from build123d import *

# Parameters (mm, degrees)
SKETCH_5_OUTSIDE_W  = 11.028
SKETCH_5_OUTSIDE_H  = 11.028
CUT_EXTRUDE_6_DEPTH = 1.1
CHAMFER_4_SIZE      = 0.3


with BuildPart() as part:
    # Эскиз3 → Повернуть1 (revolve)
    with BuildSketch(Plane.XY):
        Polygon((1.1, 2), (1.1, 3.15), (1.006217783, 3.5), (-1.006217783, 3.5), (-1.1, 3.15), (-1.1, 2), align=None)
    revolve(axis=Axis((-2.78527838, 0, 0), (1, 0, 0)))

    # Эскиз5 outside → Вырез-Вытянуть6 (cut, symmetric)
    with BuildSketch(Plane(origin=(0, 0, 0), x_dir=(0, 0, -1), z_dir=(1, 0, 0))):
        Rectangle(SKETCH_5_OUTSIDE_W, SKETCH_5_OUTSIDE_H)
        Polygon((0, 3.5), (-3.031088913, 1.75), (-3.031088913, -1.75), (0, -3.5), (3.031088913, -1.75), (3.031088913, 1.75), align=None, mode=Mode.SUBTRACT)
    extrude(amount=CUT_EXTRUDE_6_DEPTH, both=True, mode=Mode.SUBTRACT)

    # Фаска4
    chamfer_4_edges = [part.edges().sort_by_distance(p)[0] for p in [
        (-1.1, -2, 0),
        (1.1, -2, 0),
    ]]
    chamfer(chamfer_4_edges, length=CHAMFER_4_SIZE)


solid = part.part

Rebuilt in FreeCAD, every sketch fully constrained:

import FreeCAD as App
import Part
import Sketcher

V = App.Vector
Q = App.Units.Quantity


def edges_at(feature, points):
    """Names of the edges that pass closest to the given points."""
    edges = feature.Shape.Edges
    near = lambda p: min(range(len(edges)), key=lambda i: edges[i].distToShape(Part.Vertex(*p))[0])
    return sorted({f"Edge{near(p) + 1}" for p in points})

doc = App.newDocument("Part")
params = doc.addObject("Spreadsheet::Sheet", "Params")
for row, (alias, value) in enumerate([
    ("sketch1_width", "2.2 mm"),
    ("sketch1_height", "1.15 mm"),
    ("revolution_angle", "360 deg"),
    ("sketch2_width", "3.5 mm"),
    ("pocket1_length", "2.2 mm"),
    ("chamfer_size", "0.3 mm"),
], start=1):
    params.set(f"A{row}", alias)
    params.set(f"B{row}", "=" + value)
    params.setAlias(f"B{row}", alias)

body = doc.addObject("PartDesign::Body", "Body")

# Sketch on XY plane
sketch1 = body.newObject("Sketcher::SketchObject", "Sketch")
sketch1.AttachmentSupport = (doc.getObject("XY_Plane"), [""])
sketch1.MapMode = "FlatFace"
sketch1.addGeometry(Part.LineSegment(V(1.1, 2, 0), V(1.1, 3.15, 0)), False)
sketch1.addGeometry(Part.LineSegment(V(1.1, 3.15, 0), V(1.01, 3.5, 0)), False)
sketch1.addGeometry(Part.LineSegment(V(1.01, 3.5, 0), V(-1.01, 3.5, 0)), False)
sketch1.addGeometry(Part.LineSegment(V(-1.01, 3.5, 0), V(-1.1, 3.15, 0)), False)
sketch1.addGeometry(Part.LineSegment(V(-1.1, 3.15, 0), V(-1.1, 2, 0)), False)
sketch1.addGeometry(Part.LineSegment(V(-1.1, 2, 0), V(1.1, 2, 0)), False)
sketch1.addConstraint(Sketcher.Constraint("Coincident", 0, 2, 1, 1))
sketch1.addConstraint(Sketcher.Constraint("Coincident", 1, 2, 2, 1))
sketch1.addConstraint(Sketcher.Constraint("Coincident", 2, 2, 3, 1))
sketch1.addConstraint(Sketcher.Constraint("Coincident", 3, 2, 4, 1))
sketch1.addConstraint(Sketcher.Constraint("Coincident", 4, 2, 5, 1))
sketch1.addConstraint(Sketcher.Constraint("Coincident", 5, 2, 0, 1))
sketch1.addConstraint(Sketcher.Constraint("Vertical", 0))
sketch1.addConstraint(Sketcher.Constraint("Horizontal", 2))
sketch1.addConstraint(Sketcher.Constraint("Vertical", 4))
sketch1.addConstraint(Sketcher.Constraint("Horizontal", 5))
sketch1.addConstraint(Sketcher.Constraint("Symmetric", 0, 2, 3, 2, -2))
sketch1.addConstraint(Sketcher.Constraint("Equal", 1, 3))
sketch1.addConstraint(Sketcher.Constraint("Angle", 1, Q("105 deg")))
sketch1.addConstraint(Sketcher.Constraint("DistanceX", 5, 1, 5, 2, 2.2))
sketch1.addConstraint(Sketcher.Constraint("DistanceY", -1, 1, 4, 2, 2.0))
sketch1.addConstraint(Sketcher.Constraint("DistanceY", 0, 1, 0, 2, 1.15))
sketch1.addConstraint(Sketcher.Constraint("DistanceY", -1, 1, 1, 2, 3.5))
sketch1.setExpression("Constraints[13]", "Params.sketch1_width")
sketch1.setExpression("Constraints[15]", "Params.sketch1_height")
revolution = body.newObject("PartDesign::Revolution", "Revolution")
revolution.Profile = sketch1
revolution.ReferenceAxis = (sketch1, ["H_Axis"])
revolution.setExpression("Angle", "Params.revolution_angle")

# Sketch on YZ plane
sketch2 = body.newObject("Sketcher::SketchObject", "Sketch001")
sketch2.AttachmentSupport = (doc.getObject("YZ_Plane"), [""])
sketch2.MapMode = "FlatFace"
sketch2.addGeometry(Part.LineSegment(V(5.5, 5.5, 0), V(-5.5, 5.5, 0)), False)
sketch2.addGeometry(Part.LineSegment(V(-5.5, 5.5, 0), V(-5.5, -5.5, 0)), False)
sketch2.addGeometry(Part.LineSegment(V(-5.5, -5.5, 0), V(5.5, -5.5, 0)), False)
sketch2.addGeometry(Part.LineSegment(V(5.5, -5.5, 0), V(5.5, 5.5, 0)), False)
sketch2.addGeometry(Part.LineSegment(V(1.8, 3, 0), V(3.5, 0, 0)), False)
sketch2.addGeometry(Part.LineSegment(V(3.5, 0, 0), V(1.8, -3, 0)), False)
sketch2.addGeometry(Part.LineSegment(V(1.8, -3, 0), V(-1.8, -3, 0)), False)
sketch2.addGeometry(Part.LineSegment(V(-1.8, -3, 0), V(-3.5, 0, 0)), False)
sketch2.addGeometry(Part.LineSegment(V(-3.5, 0, 0), V(-1.8, 3, 0)), False)
sketch2.addGeometry(Part.LineSegment(V(-1.8, 3, 0), V(1.8, 3, 0)), False)
sketch2.addConstraint(Sketcher.Constraint("Coincident", 0, 2, 1, 1))
sketch2.addConstraint(Sketcher.Constraint("Coincident", 1, 2, 2, 1))
sketch2.addConstraint(Sketcher.Constraint("Coincident", 2, 2, 3, 1))
sketch2.addConstraint(Sketcher.Constraint("Coincident", 3, 2, 0, 1))
sketch2.addConstraint(Sketcher.Constraint("Coincident", 4, 2, 5, 1))
sketch2.addConstraint(Sketcher.Constraint("Coincident", 5, 2, 6, 1))
sketch2.addConstraint(Sketcher.Constraint("Coincident", 6, 2, 7, 1))
sketch2.addConstraint(Sketcher.Constraint("Coincident", 7, 2, 8, 1))
sketch2.addConstraint(Sketcher.Constraint("Coincident", 8, 2, 9, 1))
sketch2.addConstraint(Sketcher.Constraint("Coincident", 9, 2, 4, 1))
sketch2.addConstraint(Sketcher.Constraint("Horizontal", 0))
sketch2.addConstraint(Sketcher.Constraint("Vertical", 1))
sketch2.addConstraint(Sketcher.Constraint("Horizontal", 2))
sketch2.addConstraint(Sketcher.Constraint("Vertical", 3))
sketch2.addConstraint(Sketcher.Constraint("Horizontal", 6))
sketch2.addConstraint(Sketcher.Constraint("Horizontal", 9))
sketch2.addConstraint(Sketcher.Constraint("Symmetric", 0, 2, 2, 2, -1, 1))
sketch2.addConstraint(Sketcher.Constraint("Symmetric", 4, 2, 7, 2, -1, 1))
sketch2.addConstraint(Sketcher.Constraint("Symmetric", 5, 2, 8, 2, -1, 1))
sketch2.addConstraint(Sketcher.Constraint("PointOnObject", 4, 2, -1))
sketch2.addConstraint(Sketcher.Constraint("Parallel", 4, 7))
sketch2.addConstraint(Sketcher.Constraint("Vertical", 6, 2, 8, 2))
sketch2.addConstraint(Sketcher.Constraint("Equal", 2, 1))
sketch2.addConstraint(Sketcher.Constraint("Angle", 4, Q("-60 deg")))
sketch2.addConstraint(Sketcher.Constraint("DistanceX", 6, 2, 6, 1, 3.5))
sketch2.addConstraint(Sketcher.Constraint("DistanceX", 7, 2, 4, 2, 7.0))
sketch2.addConstraint(Sketcher.Constraint("DistanceX", 0, 2, 0, 1, 11.028))
sketch2.setExpression("Constraints[24]", "Params.sketch2_width")
pocket1 = body.newObject("PartDesign::Pocket", "Pocket")
pocket1.Profile = sketch2
pocket1.setExpression("Length", "Params.pocket1_length")
pocket1.Midplane = True
doc.recompute()

chamfer = body.newObject("PartDesign::Chamfer", "Chamfer")
chamfer.Base = (pocket1, edges_at(pocket1, [(-1.1, -2, 0), (1.1, -2, 0)]))
chamfer.setExpression("Size", "Params.chamfer_size")

doc.recompute()
